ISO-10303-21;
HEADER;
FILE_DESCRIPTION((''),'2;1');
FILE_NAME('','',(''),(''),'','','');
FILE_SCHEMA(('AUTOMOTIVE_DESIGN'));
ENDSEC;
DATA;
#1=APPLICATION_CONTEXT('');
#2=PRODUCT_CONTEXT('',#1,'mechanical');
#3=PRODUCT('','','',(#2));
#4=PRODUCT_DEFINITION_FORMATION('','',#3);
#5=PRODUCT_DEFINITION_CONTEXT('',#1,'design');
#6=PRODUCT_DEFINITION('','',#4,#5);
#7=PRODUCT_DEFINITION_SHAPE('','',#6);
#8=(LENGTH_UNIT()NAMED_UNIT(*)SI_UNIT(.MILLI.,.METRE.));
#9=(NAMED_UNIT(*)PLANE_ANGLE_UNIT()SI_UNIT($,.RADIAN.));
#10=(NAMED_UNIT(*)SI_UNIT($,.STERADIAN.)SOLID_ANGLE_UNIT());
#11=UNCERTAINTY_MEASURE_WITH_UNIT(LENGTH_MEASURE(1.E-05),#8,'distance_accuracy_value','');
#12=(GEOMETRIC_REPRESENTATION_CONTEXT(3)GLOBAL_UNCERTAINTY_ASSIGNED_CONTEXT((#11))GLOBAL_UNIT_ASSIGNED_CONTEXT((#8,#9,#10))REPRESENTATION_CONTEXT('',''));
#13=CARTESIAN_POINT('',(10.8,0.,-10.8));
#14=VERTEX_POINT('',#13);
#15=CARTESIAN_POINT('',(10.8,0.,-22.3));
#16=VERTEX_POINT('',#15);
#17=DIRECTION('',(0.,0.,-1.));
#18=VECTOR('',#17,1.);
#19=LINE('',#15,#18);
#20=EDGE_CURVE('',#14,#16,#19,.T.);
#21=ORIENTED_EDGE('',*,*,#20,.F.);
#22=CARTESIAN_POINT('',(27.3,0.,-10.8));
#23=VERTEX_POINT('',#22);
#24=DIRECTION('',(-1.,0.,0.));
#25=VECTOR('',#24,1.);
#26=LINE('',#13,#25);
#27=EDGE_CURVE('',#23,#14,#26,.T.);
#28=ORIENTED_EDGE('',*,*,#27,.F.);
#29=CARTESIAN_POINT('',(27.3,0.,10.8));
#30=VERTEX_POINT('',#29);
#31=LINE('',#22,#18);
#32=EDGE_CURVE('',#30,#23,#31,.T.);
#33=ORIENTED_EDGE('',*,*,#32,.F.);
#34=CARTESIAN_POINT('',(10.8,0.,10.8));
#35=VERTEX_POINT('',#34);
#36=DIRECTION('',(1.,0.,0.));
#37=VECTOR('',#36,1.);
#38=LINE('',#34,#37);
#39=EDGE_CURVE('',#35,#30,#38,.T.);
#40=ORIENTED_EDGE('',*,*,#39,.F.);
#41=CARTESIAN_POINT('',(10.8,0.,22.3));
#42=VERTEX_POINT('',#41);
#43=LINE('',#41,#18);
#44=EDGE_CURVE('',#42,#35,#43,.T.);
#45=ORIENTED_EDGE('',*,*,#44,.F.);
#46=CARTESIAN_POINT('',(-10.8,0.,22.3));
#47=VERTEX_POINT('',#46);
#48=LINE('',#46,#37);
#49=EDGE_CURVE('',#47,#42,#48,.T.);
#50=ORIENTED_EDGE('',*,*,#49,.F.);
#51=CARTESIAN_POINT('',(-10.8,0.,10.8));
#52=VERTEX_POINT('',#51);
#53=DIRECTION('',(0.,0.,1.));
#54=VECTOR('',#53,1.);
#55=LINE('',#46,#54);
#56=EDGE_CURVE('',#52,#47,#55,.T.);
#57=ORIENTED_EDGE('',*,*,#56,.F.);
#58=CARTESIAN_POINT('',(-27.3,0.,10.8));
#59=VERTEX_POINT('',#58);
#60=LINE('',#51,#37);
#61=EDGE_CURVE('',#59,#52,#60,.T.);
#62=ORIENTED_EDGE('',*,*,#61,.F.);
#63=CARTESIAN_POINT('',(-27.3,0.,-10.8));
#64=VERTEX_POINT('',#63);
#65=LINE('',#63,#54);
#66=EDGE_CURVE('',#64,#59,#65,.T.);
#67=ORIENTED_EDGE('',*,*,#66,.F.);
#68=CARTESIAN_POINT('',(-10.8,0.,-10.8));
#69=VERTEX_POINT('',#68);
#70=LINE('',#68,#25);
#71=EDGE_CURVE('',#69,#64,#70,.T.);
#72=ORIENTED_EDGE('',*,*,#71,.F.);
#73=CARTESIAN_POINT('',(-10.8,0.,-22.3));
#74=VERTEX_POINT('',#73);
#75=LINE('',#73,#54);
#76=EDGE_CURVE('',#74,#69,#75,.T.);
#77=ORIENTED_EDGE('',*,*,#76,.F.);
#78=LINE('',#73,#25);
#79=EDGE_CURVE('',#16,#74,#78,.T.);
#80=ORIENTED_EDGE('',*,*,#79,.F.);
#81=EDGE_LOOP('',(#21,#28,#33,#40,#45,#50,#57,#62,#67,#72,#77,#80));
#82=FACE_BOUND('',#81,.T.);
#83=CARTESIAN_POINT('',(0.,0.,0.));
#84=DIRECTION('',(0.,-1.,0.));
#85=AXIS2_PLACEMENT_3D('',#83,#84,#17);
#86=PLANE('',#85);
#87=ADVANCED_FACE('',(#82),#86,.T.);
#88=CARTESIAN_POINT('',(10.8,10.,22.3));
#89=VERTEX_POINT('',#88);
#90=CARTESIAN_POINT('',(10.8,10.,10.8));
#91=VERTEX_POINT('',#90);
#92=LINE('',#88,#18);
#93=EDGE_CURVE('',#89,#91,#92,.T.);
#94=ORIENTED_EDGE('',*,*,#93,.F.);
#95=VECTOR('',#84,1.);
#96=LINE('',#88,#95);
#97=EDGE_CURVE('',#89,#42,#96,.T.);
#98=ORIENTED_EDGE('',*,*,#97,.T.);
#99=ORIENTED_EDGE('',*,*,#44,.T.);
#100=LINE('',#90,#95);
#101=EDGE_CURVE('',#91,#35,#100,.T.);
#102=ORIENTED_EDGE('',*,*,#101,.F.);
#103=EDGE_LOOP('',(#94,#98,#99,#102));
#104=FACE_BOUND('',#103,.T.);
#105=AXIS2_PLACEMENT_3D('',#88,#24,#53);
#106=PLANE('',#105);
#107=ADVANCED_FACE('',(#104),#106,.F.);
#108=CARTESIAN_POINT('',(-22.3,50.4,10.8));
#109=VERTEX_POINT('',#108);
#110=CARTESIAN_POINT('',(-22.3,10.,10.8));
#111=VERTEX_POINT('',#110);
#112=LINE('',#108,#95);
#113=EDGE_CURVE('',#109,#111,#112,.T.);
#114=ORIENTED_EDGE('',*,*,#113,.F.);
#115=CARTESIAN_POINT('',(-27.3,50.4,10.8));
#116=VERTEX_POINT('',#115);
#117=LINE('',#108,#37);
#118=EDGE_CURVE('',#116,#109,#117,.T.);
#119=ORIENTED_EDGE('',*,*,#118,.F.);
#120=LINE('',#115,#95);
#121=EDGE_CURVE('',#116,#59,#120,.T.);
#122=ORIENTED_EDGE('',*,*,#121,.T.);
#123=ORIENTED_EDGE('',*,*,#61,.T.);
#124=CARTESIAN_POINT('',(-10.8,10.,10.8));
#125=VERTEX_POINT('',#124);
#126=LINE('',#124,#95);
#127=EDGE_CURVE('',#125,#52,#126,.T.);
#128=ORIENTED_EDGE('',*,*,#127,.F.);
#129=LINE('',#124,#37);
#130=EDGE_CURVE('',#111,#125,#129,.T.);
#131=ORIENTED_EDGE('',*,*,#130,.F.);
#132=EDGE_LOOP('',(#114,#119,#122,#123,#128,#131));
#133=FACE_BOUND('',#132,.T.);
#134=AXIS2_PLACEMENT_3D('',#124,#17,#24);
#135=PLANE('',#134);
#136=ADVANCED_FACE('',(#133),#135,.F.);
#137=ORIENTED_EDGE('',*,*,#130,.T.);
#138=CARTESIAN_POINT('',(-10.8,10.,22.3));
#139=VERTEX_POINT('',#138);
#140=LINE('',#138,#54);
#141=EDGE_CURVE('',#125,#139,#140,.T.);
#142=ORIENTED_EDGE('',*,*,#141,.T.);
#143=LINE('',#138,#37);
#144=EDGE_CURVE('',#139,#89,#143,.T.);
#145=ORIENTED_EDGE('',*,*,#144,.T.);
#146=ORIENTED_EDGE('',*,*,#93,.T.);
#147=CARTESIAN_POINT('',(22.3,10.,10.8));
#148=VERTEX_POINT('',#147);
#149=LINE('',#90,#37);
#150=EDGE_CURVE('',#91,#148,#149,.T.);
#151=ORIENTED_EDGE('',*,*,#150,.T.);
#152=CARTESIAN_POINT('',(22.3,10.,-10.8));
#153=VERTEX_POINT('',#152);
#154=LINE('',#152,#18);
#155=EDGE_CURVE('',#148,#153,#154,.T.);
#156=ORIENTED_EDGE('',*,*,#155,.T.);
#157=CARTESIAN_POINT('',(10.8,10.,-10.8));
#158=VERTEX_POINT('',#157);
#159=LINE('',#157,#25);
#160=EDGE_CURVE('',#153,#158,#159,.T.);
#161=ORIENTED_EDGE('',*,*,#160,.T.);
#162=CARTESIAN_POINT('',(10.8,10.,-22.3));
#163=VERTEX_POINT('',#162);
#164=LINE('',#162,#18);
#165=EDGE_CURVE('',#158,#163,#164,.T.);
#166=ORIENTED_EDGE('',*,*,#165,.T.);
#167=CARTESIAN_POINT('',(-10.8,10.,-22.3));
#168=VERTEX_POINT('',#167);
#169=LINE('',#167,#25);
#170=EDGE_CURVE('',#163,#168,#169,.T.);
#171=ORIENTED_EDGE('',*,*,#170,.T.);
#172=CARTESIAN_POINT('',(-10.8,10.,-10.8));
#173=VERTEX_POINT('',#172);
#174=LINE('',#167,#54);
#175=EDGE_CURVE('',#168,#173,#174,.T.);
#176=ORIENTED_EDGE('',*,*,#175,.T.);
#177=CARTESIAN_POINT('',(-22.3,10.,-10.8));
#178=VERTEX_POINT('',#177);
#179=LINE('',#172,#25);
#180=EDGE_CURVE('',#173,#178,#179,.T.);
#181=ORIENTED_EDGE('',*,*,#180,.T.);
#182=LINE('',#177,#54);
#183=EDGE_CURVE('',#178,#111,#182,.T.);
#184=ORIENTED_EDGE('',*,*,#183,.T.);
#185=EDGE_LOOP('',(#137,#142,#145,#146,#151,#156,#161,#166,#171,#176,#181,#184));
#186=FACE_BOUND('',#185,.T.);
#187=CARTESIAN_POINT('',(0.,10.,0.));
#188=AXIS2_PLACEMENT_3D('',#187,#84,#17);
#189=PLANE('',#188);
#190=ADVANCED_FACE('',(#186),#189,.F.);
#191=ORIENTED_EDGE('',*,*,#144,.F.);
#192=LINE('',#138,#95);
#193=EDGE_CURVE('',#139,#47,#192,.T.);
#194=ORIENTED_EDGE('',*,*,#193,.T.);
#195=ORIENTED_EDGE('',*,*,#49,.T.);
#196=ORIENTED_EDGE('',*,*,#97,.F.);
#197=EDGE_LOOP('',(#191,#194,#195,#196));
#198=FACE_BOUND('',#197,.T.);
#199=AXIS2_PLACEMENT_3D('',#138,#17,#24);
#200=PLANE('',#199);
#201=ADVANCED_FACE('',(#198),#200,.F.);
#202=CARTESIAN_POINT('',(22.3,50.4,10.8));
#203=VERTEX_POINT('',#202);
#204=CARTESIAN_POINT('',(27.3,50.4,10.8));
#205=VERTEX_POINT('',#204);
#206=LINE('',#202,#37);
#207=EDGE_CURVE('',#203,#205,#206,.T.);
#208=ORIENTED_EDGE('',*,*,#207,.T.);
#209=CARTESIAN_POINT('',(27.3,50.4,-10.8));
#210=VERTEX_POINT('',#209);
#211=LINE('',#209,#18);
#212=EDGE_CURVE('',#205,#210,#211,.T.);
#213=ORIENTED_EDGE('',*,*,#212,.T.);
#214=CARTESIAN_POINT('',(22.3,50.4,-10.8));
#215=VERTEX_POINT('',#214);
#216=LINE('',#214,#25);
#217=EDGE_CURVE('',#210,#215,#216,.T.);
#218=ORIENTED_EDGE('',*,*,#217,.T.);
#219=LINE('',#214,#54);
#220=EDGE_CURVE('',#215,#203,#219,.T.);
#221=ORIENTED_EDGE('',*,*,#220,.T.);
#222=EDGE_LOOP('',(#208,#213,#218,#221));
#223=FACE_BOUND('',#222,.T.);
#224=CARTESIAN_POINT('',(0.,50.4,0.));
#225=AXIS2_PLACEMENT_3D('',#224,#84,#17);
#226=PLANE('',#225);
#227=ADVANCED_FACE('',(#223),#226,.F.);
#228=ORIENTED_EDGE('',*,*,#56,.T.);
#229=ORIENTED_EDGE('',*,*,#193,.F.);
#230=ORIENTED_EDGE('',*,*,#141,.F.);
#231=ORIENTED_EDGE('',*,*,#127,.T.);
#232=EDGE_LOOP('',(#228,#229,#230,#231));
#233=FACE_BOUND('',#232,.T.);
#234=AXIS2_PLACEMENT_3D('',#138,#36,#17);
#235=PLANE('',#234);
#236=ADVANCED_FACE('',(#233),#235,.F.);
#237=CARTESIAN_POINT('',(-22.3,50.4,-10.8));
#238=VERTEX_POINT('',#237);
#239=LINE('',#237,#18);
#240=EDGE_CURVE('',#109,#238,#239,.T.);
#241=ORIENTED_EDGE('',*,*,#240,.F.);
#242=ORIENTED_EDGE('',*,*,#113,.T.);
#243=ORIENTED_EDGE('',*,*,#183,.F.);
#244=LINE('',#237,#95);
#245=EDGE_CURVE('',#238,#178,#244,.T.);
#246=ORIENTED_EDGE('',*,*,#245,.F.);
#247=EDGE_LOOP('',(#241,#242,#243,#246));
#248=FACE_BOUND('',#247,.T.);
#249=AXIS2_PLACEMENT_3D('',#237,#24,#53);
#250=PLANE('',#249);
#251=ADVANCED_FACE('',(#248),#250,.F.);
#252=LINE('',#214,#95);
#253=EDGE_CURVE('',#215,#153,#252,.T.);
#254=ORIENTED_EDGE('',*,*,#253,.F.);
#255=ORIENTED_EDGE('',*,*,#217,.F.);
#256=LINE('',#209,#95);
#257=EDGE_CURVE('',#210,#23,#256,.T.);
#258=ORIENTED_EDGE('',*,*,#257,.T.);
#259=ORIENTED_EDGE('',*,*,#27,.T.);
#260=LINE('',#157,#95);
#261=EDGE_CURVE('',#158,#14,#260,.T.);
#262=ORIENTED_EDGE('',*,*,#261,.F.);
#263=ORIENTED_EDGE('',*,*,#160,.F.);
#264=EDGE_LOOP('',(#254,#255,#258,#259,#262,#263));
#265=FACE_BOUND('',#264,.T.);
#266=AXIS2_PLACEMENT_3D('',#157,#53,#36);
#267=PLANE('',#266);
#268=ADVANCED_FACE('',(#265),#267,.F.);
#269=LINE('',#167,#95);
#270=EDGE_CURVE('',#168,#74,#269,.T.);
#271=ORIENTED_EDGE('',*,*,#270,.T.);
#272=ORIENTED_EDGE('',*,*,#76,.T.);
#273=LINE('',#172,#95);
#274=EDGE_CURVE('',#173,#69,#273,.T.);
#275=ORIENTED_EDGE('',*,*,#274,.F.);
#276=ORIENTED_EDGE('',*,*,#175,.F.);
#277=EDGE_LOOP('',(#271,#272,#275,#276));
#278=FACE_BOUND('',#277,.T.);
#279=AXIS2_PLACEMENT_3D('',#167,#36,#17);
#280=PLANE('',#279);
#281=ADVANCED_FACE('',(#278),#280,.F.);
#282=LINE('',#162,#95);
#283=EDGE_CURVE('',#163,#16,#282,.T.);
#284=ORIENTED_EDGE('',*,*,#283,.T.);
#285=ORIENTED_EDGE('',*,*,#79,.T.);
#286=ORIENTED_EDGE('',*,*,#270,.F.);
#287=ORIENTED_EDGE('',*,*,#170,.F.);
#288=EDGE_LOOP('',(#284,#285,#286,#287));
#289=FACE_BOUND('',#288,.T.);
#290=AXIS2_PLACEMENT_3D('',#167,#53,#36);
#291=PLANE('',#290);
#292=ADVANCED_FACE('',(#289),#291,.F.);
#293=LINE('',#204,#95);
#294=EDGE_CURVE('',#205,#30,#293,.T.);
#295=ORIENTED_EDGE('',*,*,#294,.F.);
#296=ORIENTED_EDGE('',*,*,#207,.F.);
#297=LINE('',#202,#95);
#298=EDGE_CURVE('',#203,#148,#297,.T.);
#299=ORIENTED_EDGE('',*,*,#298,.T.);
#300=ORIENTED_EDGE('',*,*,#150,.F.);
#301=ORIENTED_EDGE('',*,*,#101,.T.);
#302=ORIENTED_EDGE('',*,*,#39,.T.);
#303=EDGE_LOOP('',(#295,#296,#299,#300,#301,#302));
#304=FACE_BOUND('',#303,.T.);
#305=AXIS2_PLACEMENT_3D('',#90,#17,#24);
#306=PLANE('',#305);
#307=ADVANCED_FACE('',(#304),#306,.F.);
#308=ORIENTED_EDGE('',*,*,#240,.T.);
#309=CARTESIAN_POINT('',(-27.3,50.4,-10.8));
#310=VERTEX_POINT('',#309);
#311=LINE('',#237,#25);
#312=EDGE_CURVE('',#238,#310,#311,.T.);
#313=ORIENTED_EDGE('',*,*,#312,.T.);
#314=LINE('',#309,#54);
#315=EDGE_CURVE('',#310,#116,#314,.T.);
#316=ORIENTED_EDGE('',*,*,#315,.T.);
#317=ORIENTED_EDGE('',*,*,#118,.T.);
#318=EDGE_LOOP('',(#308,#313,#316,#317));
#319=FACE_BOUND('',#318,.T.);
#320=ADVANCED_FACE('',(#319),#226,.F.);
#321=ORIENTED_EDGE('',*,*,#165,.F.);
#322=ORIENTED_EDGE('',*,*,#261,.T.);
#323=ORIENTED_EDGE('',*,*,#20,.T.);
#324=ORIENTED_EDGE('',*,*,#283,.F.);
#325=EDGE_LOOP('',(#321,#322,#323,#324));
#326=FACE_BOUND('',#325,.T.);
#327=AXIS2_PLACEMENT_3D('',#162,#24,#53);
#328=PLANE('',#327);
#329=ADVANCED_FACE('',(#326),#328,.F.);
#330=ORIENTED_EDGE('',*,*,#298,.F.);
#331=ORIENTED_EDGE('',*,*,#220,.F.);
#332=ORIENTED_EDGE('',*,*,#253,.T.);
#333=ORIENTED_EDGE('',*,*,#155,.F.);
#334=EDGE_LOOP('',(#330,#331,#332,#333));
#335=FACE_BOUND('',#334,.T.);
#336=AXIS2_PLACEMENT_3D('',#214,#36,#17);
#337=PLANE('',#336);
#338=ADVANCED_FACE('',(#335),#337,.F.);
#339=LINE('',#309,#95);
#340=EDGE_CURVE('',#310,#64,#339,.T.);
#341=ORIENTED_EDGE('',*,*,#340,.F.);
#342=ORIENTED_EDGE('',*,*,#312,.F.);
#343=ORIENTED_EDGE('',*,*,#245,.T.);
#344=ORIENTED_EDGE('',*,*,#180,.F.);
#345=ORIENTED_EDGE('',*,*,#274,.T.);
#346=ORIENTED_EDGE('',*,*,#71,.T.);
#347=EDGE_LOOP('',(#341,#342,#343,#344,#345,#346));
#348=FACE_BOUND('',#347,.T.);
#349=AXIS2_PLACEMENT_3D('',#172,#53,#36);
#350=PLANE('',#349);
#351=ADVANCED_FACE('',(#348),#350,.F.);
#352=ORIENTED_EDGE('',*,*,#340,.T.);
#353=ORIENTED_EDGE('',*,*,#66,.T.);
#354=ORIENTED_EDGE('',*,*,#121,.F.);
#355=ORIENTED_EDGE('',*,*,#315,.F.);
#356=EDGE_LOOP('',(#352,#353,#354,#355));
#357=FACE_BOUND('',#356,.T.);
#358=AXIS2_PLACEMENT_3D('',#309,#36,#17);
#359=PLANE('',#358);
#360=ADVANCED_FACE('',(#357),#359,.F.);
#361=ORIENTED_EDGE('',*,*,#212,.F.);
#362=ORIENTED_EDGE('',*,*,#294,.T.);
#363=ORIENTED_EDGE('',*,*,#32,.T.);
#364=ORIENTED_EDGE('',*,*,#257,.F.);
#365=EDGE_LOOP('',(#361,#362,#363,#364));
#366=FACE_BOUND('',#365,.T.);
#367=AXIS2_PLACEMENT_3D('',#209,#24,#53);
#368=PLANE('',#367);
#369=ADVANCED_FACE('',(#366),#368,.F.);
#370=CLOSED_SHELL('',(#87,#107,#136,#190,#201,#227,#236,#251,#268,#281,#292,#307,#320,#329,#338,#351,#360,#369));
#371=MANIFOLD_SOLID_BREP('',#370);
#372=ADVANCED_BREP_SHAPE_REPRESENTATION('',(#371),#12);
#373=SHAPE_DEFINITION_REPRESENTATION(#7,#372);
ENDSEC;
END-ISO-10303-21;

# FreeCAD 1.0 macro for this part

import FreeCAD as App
import Part
import Sketcher
Q = App.Units.Quantity

doc = App.newDocument("Part")
body = doc.addObject("PartDesign::Body", "Body")

# Sketch on XZ plane
sketch1 = doc.addObject("Sketcher::SketchObject", "Sketch")
body.addObject(sketch1)
sketch1.AttachmentSupport = (doc.XZ_Plane, [""])
sketch1.MapMode = "FlatFace"
sketch1.addGeometry([
    Part.LineSegment(App.Vector(-11, -22, 0), App.Vector(-11, -11, 0)),  # 0
    Part.LineSegment(App.Vector(-11, -11, 0), App.Vector(-22, -11, 0)),  # 1
    Part.LineSegment(App.Vector(-22, -11, 0), App.Vector(-22, 11, 0)),  # 2
    Part.LineSegment(App.Vector(-22, 11, 0), App.Vector(-11, 11, 0)),  # 3
    Part.LineSegment(App.Vector(-11, 11, 0), App.Vector(-11, 22, 0)),  # 4
    Part.LineSegment(App.Vector(-11, 22, 0), App.Vector(11, 22, 0)),  # 5
    Part.LineSegment(App.Vector(11, 22, 0), App.Vector(11, 11, 0)),  # 6
    Part.LineSegment(App.Vector(11, 11, 0), App.Vector(22, 11, 0)),  # 7
    Part.LineSegment(App.Vector(22, 11, 0), App.Vector(22, -11, 0)),  # 8
    Part.LineSegment(App.Vector(22, -11, 0), App.Vector(11, -11, 0)),  # 9
    Part.LineSegment(App.Vector(11, -11, 0), App.Vector(11, -22, 0)),  # 10
    Part.LineSegment(App.Vector(11, -22, 0), App.Vector(-11, -22, 0)),  # 11
], False)
sketch1.addConstraint([
    Sketcher.Constraint("Coincident", 0, 2, 1, 1),
    Sketcher.Constraint("Coincident", 1, 2, 2, 1),
    Sketcher.Constraint("Coincident", 2, 2, 3, 1),
    Sketcher.Constraint("Coincident", 3, 2, 4, 1),
    Sketcher.Constraint("Coincident", 4, 2, 5, 1),
    Sketcher.Constraint("Coincident", 5, 2, 6, 1),
    Sketcher.Constraint("Coincident", 6, 2, 7, 1),
    Sketcher.Constraint("Coincident", 7, 2, 8, 1),
    Sketcher.Constraint("Coincident", 8, 2, 9, 1),
    Sketcher.Constraint("Coincident", 9, 2, 10, 1),
    Sketcher.Constraint("Coincident", 10, 2, 11, 1),
    Sketcher.Constraint("Coincident", 11, 2, 0, 1),
    Sketcher.Constraint("Vertical", 0),
    Sketcher.Constraint("Horizontal", 1),
    Sketcher.Constraint("Vertical", 2),
    Sketcher.Constraint("Horizontal", 3),
    Sketcher.Constraint("Vertical", 4),
    Sketcher.Constraint("Horizontal", 5),
    Sketcher.Constraint("Vertical", 6),
    Sketcher.Constraint("Horizontal", 7),
    Sketcher.Constraint("Vertical", 8),
    Sketcher.Constraint("Horizontal", 9),
    Sketcher.Constraint("Vertical", 10),
    Sketcher.Constraint("Horizontal", 11),
    Sketcher.Constraint("Symmetric", 0, 2, 6, 2, -1, 1),
    Sketcher.Constraint("Symmetric", 2, 2, 8, 2, -1, 1),
    Sketcher.Constraint("Symmetric", 4, 2, 10, 2, -1, 1),
    Sketcher.Constraint("Symmetric", 3, 2, 6, 2, -2),
    Sketcher.Constraint("Equal", 9, 0),
    Sketcher.Constraint("Equal", 11, 2),
    Sketcher.Constraint("DistanceX", 1, 2, 1, 1, Q("11.5 mm")),
    Sketcher.Constraint("DistanceX", 5, 1, 5, 2, Q("21.6 mm")),
])
pad1 = doc.addObject("PartDesign::Pad", "Pad")
body.addObject(pad1)
pad1.Profile = sketch1
pad1.Length = 10
pad1.Reversed = True

# Sketch on XZ plane
sketch2 = doc.addObject("Sketcher::SketchObject", "Sketch001")
body.addObject(sketch2)
sketch2.AttachmentSupport = (doc.XZ_Plane, [""])
sketch2.MapMode = "FlatFace"
sketch2.addGeometry([
    Part.LineSegment(App.Vector(22, -11, 0), App.Vector(22, 11, 0)),  # 0
    Part.LineSegment(App.Vector(22, 11, 0), App.Vector(27, 11, 0)),  # 1
    Part.LineSegment(App.Vector(27, 11, 0), App.Vector(27, -11, 0)),  # 2
    Part.LineSegment(App.Vector(27, -11, 0), App.Vector(22, -11, 0)),  # 3
    Part.LineSegment(App.Vector(-27, -11, 0), App.Vector(-27, 11, 0)),  # 4
    Part.LineSegment(App.Vector(-27, 11, 0), App.Vector(-22, 11, 0)),  # 5
    Part.LineSegment(App.Vector(-22, 11, 0), App.Vector(-22, -11, 0)),  # 6
    Part.LineSegment(App.Vector(-22, -11, 0), App.Vector(-27, -11, 0)),  # 7
], False)
sketch2.addConstraint([
    Sketcher.Constraint("Coincident", 0, 2, 1, 1),
    Sketcher.Constraint("Coincident", 1, 2, 2, 1),
    Sketcher.Constraint("Coincident", 2, 2, 3, 1),
    Sketcher.Constraint("Coincident", 3, 2, 0, 1),
    Sketcher.Constraint("Coincident", 4, 2, 5, 1),
    Sketcher.Constraint("Coincident", 5, 2, 6, 1),
    Sketcher.Constraint("Coincident", 6, 2, 7, 1),
    Sketcher.Constraint("Coincident", 7, 2, 4, 1),
    Sketcher.Constraint("Vertical", 0),
    Sketcher.Constraint("Horizontal", 1),
    Sketcher.Constraint("Vertical", 2),
    Sketcher.Constraint("Horizontal", 3),
    Sketcher.Constraint("Vertical", 4),
    Sketcher.Constraint("Horizontal", 5),
    Sketcher.Constraint("Vertical", 6),
    Sketcher.Constraint("Horizontal", 7),
    Sketcher.Constraint("Symmetric", 2, 2, 4, 2, -1, 1),
    Sketcher.Constraint("Symmetric", 0, 2, 6, 2, -1, 1),
    Sketcher.Constraint("Horizontal", 1, 2, 4, 2),
    Sketcher.Constraint("DistanceX", 1, 1, 1, 2, Q("5 mm")),
    Sketcher.Constraint("DistanceY", 0, 1, 0, 2, Q("21.6 mm")),
    Sketcher.Constraint("DistanceX", -1, 1, 0, 2, Q("22.3 mm")),
])
pad2 = doc.addObject("PartDesign::Pad", "Pad001")
body.addObject(pad2)
pad2.Profile = sketch2
pad2.Length = 50.4
pad2.Reversed = True

doc.recompute()
